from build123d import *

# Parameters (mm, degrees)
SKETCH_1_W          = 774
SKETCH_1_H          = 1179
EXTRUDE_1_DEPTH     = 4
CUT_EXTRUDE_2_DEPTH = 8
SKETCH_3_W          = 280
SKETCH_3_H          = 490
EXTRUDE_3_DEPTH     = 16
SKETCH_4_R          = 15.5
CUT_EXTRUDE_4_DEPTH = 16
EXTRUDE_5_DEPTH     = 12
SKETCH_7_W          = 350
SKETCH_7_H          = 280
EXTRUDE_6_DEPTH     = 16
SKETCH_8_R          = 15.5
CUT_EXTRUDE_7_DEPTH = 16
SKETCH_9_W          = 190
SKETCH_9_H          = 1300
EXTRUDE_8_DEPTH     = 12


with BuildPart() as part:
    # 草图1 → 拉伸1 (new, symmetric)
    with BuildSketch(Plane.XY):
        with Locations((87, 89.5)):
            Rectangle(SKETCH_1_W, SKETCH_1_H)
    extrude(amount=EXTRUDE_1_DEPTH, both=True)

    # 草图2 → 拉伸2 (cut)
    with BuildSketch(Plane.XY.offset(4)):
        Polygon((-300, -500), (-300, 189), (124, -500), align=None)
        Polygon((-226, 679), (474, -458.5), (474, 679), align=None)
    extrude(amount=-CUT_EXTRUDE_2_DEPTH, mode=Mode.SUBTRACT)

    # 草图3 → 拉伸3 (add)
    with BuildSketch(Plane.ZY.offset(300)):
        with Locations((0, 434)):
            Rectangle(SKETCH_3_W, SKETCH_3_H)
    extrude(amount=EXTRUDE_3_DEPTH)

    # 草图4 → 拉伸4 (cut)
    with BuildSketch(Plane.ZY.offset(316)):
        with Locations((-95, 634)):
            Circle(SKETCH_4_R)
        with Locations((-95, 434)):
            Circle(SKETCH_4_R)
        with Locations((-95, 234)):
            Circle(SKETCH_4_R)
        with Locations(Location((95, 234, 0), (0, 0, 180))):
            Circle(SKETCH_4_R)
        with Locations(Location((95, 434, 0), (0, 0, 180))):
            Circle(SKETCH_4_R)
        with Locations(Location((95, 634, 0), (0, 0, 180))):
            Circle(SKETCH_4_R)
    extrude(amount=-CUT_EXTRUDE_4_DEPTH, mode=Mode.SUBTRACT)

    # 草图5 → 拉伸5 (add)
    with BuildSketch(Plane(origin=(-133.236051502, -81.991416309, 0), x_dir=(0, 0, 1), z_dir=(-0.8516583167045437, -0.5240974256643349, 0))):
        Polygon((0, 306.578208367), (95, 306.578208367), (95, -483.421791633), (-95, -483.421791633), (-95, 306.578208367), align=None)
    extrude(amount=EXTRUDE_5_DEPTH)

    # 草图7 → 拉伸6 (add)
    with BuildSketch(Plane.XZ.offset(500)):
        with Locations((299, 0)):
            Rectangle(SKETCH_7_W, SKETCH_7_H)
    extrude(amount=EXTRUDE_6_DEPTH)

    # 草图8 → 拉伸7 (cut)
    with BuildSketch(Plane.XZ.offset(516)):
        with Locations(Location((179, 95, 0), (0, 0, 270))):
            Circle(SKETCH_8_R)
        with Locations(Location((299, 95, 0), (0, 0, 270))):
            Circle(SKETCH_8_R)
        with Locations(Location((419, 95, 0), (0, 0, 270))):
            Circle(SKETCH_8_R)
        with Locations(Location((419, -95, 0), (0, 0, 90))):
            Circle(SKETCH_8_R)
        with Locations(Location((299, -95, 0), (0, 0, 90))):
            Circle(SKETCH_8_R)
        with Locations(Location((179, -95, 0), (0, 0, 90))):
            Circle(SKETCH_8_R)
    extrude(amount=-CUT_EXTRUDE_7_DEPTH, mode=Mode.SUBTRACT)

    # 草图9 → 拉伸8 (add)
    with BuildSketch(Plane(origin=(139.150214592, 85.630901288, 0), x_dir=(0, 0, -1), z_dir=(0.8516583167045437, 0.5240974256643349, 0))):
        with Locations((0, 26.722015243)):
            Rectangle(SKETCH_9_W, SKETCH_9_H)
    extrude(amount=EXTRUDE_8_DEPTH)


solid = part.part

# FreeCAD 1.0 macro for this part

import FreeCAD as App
import Part
import Sketcher

V = App.Vector
Q = App.Units.Quantity

doc = App.newDocument("Part")
body = doc.addObject("PartDesign::Body", "Body")

# Sketch on XY plane
sketch1 = body.newObject("Sketcher::SketchObject", "Sketch")
sketch1.AttachmentSupport = (doc.getObject("XY_Plane"), [""])
sketch1.MapMode = "FlatFace"
sketch1.addGeometry(Part.LineSegment(V(-300, 679, 0), V(-300, -500, 0)), False)
sketch1.addGeometry(Part.LineSegment(V(-300, -500, 0), V(474, -500, 0)), False)
sketch1.addGeometry(Part.LineSegment(V(474, -500, 0), V(474, 679, 0)), False)
sketch1.addGeometry(Part.LineSegment(V(474, 679, 0), V(-300, 679, 0)), False)
sketch1.addConstraint(Sketcher.Constraint("Coincident", 0, 2, 1, 1))
sketch1.addConstraint(Sketcher.Constraint("Coincident", 1, 2, 2, 1))
sketch1.addConstraint(Sketcher.Constraint("Coincident", 2, 2, 3, 1))
sketch1.addConstraint(Sketcher.Constraint("Coincident", 3, 2, 0, 1))
sketch1.addConstraint(Sketcher.Constraint("Vertical", 0))
sketch1.addConstraint(Sketcher.Constraint("Horizontal", 1))
sketch1.addConstraint(Sketcher.Constraint("Vertical", 2))
sketch1.addConstraint(Sketcher.Constraint("Horizontal", 3))
sketch1.addConstraint(Sketcher.Constraint("DistanceX", 1, 1, 1, 2, Q("774 mm")))
sketch1.addConstraint(Sketcher.Constraint("DistanceY", 0, 2, 0, 1, Q("1179 mm")))
sketch1.addConstraint(Sketcher.Constraint("DistanceX", 0, 2, -1, 1, Q("300 mm")))
sketch1.addConstraint(Sketcher.Constraint("DistanceY", 0, 2, -1, 1, Q("500 mm")))
pad1 = body.newObject("PartDesign::Pad", "Pad")
pad1.Profile = sketch1
pad1.Length = 8
pad1.Midplane = True

# Sketch on XY plane
sketch2 = body.newObject("Sketcher::SketchObject", "Sketch001")
sketch2.AttachmentSupport = (doc.getObject("XY_Plane"), [""])
sketch2.MapMode = "FlatFace"
sketch2.AttachmentOffset = App.Placement(V(0, 0, 4), App.Rotation())
sketch2.addGeometry(Part.LineSegment(V(-300, 189, 0), V(-300, -500, 0)), False)
sketch2.addGeometry(Part.LineSegment(V(-300, -500, 0), V(124, -500, 0)), False)
sketch2.addGeometry(Part.LineSegment(V(124, -500, 0), V(-300, 189, 0)), False)
sketch2.addGeometry(Part.LineSegment(V(-226, 679, 0), V(474, -458, 0)), False)
sketch2.addGeometry(Part.LineSegment(V(474, -458, 0), V(474, 679, 0)), False)
sketch2.addGeometry(Part.LineSegment(V(474, 679, 0), V(-226, 679, 0)), False)
sketch2.addConstraint(Sketcher.Constraint("Coincident", 0, 2, 1, 1))
sketch2.addConstraint(Sketcher.Constraint("Coincident", 1, 2, 2, 1))
sketch2.addConstraint(Sketcher.Constraint("Coincident", 2, 2, 0, 1))
sketch2.addConstraint(Sketcher.Constraint("Coincident", 3, 2, 4, 1))
sketch2.addConstraint(Sketcher.Constraint("Coincident", 4, 2, 5, 1))
sketch2.addConstraint(Sketcher.Constraint("Coincident", 5, 2, 3, 1))
sketch2.addConstraint(Sketcher.Constraint("Vertical", 0))
sketch2.addConstraint(Sketcher.Constraint("Horizontal", 1))
sketch2.addConstraint(Sketcher.Constraint("Vertical", 4))
sketch2.addConstraint(Sketcher.Constraint("Horizontal", 5))
sketch2.addConstraint(Sketcher.Constraint("Parallel", 2, 3))
sketch2.addConstraint(Sketcher.Constraint("DistanceX", 1, 1, 1, 2, Q("424 mm")))
sketch2.addConstraint(Sketcher.Constraint("DistanceX", 5, 2, 5, 1, Q("700 mm")))
sketch2.addConstraint(Sketcher.Constraint("DistanceY", 0, 2, 0, 1, Q("689 mm")))
sketch2.addConstraint(Sketcher.Constraint("DistanceX", 0, 2, -1, 1, Q("300 mm")))
sketch2.addConstraint(Sketcher.Constraint("DistanceY", 0, 2, -1, 1, Q("500 mm")))
sketch2.addConstraint(Sketcher.Constraint("DistanceX", -1, 1, 3, 2, Q("474 mm")))
sketch2.addConstraint(Sketcher.Constraint("DistanceY", -1, 1, 4, 2, Q("679 mm")))
pocket1 = body.newObject("PartDesign::Pocket", "Pocket")
pocket1.Profile = sketch2
pocket1.Length = 8

# Sketch on YZ plane
sketch3 = body.newObject("Sketcher::SketchObject", "Sketch002")
sketch3.AttachmentSupport = (doc.getObject("YZ_Plane"), [""])
sketch3.MapMode = "FlatFace"
sketch3.AttachmentOffset = App.Placement(V(0, 0, -300), App.Rotation())
sketch3.addGeometry(Part.LineSegment(V(679, -140, 0), V(189, -140, 0)), False)
sketch3.addGeometry(Part.LineSegment(V(189, -140, 0), V(189, 140, 0)), False)
sketch3.addGeometry(Part.LineSegment(V(189, 140, 0), V(679, 140, 0)), False)
sketch3.addGeometry(Part.LineSegment(V(679, 140, 0), V(679, -140, 0)), False)
sketch3.addConstraint(Sketcher.Constraint("Coincident", 0, 2, 1, 1))
sketch3.addConstraint(Sketcher.Constraint("Coincident", 1, 2, 2, 1))
sketch3.addConstraint(Sketcher.Constraint("Coincident", 2, 2, 3, 1))
sketch3.addConstraint(Sketcher.Constraint("Coincident", 3, 2, 0, 1))
sketch3.addConstraint(Sketcher.Constraint("Horizontal", 0))
sketch3.addConstraint(Sketcher.Constraint("Vertical", 1))
sketch3.addConstraint(Sketcher.Constraint("Horizontal", 2))
sketch3.addConstraint(Sketcher.Constraint("Vertical", 3))
sketch3.addConstraint(Sketcher.Constraint("DistanceX", 0, 2, 0, 1, Q("490 mm")))
sketch3.addConstraint(Sketcher.Constraint("DistanceY", 1, 1, 1, 2, Q("280 mm")))
sketch3.addConstraint(Sketcher.Constraint("DistanceX", -1, 1, 0, 2, Q("189 mm")))
sketch3.addConstraint(Sketcher.Constraint("DistanceY", 0, 2, -1, 1, Q("140 mm")))
pad2 = body.newObject("PartDesign::Pad", "Pad001")
pad2.Profile = sketch3
pad2.Length = 16
pad2.Reversed = True

# Sketch on YZ plane
sketch4 = body.newObject("Sketcher::SketchObject", "Sketch003")
sketch4.AttachmentSupport = (doc.getObject("YZ_Plane"), [""])
sketch4.MapMode = "FlatFace"
sketch4.AttachmentOffset = App.Placement(V(0, 0, -316), App.Rotation())
sketch4.addGeometry(Part.Circle(V(634, -95, 0), V(0, 0, 1), 16), False)
sketch4.addGeometry(Part.Circle(V(434, -95, 0), V(0, 0, 1), 16), False)
sketch4.addGeometry(Part.Circle(V(234, -95, 0), V(0, 0, 1), 16), False)
sketch4.addGeometry(Part.Circle(V(234, 95, 0), V(0, 0, 1), 16), False)
sketch4.addGeometry(Part.Circle(V(434, 95, 0), V(0, 0, 1), 16), False)
sketch4.addGeometry(Part.Circle(V(634, 95, 0), V(0, 0, 1), 16), False)
sketch4.addConstraint(Sketcher.Constraint("Equal", 0, 1))
sketch4.addConstraint(Sketcher.Constraint("Equal", 1, 2))
sketch4.addConstraint(Sketcher.Constraint("Equal", 2, 3))
sketch4.addConstraint(Sketcher.Constraint("Equal", 3, 4))
sketch4.addConstraint(Sketcher.Constraint("Equal", 4, 5))
sketch4.addConstraint(Sketcher.Constraint("Symmetric", 2, 3, 3, 3, -1))
sketch4.addConstraint(Sketcher.Constraint("Symmetric", 1, 3, 4, 3, -1))
sketch4.addConstraint(Sketcher.Constraint("Symmetric", 0, 3, 5, 3, -1))
sketch4.addConstraint(Sketcher.Constraint("Horizontal", 0, 3, 1, 3))
sketch4.addConstraint(Sketcher.Constraint("Horizontal", 1, 3, 2, 3))
sketch4.addConstraint(Sketcher.Constraint("Diameter", 0, Q("31 mm")))
sketch4.addConstraint(Sketcher.Constraint("DistanceX", -1, 1, 0, 3, Q("634 mm")))
sketch4.addConstraint(Sketcher.Constraint("DistanceY", 0, 3, -1, 1, Q("95 mm")))
sketch4.addConstraint(Sketcher.Constraint("DistanceX", -1, 1, 1, 3, Q("434 mm")))
sketch4.addConstraint(Sketcher.Constraint("DistanceX", -1, 1, 2, 3, Q("234 mm")))
pocket2 = body.newObject("PartDesign::Pocket", "Pocket001")
pocket2.Profile = sketch4
pocket2.Length = 16
pocket2.Reversed = True

# Sketch on an angled plane
sketch5 = body.newObject("Sketcher::SketchObject", "Sketch004")
sketch5.Placement = App.Placement(V(-133.236052, -81.991416, 0), App.Rotation(V(0, 0, 1), V(-0.524097426, 0.851658317, 0), V(-0.851658317, -0.524097426, 0), "ZXY"))
sketch5.addGeometry(Part.LineSegment(V(95, 307, 0), V(-95, 307, 0)), False)
sketch5.addGeometry(Part.LineSegment(V(-95, 307, 0), V(-95, -483, 0)), False)
sketch5.addGeometry(Part.LineSegment(V(-95, -483, 0), V(95, -483, 0)), False)
sketch5.addGeometry(Part.LineSegment(V(95, -483, 0), V(95, 307, 0)), False)
sketch5.addConstraint(Sketcher.Constraint("Coincident", 0, 2, 1, 1))
sketch5.addConstraint(Sketcher.Constraint("Coincident", 1, 2, 2, 1))
sketch5.addConstraint(Sketcher.Constraint("Coincident", 2, 2, 3, 1))
sketch5.addConstraint(Sketcher.Constraint("Coincident", 3, 2, 0, 1))
sketch5.addConstraint(Sketcher.Constraint("Horizontal", 0))
sketch5.addConstraint(Sketcher.Constraint("Vertical", 1))
sketch5.addConstraint(Sketcher.Constraint("Horizontal", 2))
sketch5.addConstraint(Sketcher.Constraint("Vertical", 3))
sketch5.addConstraint(Sketcher.Constraint("DistanceX", 0, 2, 0, 1, Q("190 mm")))
sketch5.addConstraint(Sketcher.Constraint("DistanceY", 1, 2, 1, 1, Q("790.000001 mm")))
sketch5.addConstraint(Sketcher.Constraint("DistanceX", 0, 2, -1, 1, Q("95 mm")))
sketch5.addConstraint(Sketcher.Constraint("DistanceY", -1, 1, 0, 2, Q("306.578209 mm")))
pad3 = body.newObject("PartDesign::Pad", "Pad002")
pad3.Profile = sketch5
pad3.Length = 12

# Sketch on XZ plane
sketch6 = body.newObject("Sketcher::SketchObject", "Sketch005")
sketch6.AttachmentSupport = (doc.getObject("XZ_Plane"), [""])
sketch6.MapMode = "FlatFace"
sketch6.AttachmentOffset = App.Placement(V(0, 0, 500), App.Rotation())
sketch6.addGeometry(Part.LineSegment(V(124, 140, 0), V(124, -140, 0)), False)
sketch6.addGeometry(Part.LineSegment(V(124, -140, 0), V(474, -140, 0)), False)
sketch6.addGeometry(Part.LineSegment(V(474, -140, 0), V(474, 140, 0)), False)
sketch6.addGeometry(Part.LineSegment(V(474, 140, 0), V(124, 140, 0)), False)
sketch6.addConstraint(Sketcher.Constraint("Coincident", 0, 2, 1, 1))
sketch6.addConstraint(Sketcher.Constraint("Coincident", 1, 2, 2, 1))
sketch6.addConstraint(Sketcher.Constraint("Coincident", 2, 2, 3, 1))
sketch6.addConstraint(Sketcher.Constraint("Coincident", 3, 2, 0, 1))
sketch6.addConstraint(Sketcher.Constraint("Vertical", 0))
sketch6.addConstraint(Sketcher.Constraint("Horizontal", 1))
sketch6.addConstraint(Sketcher.Constraint("Vertical", 2))
sketch6.addConstraint(Sketcher.Constraint("Horizontal", 3))
sketch6.addConstraint(Sketcher.Constraint("DistanceX", 1, 1, 1, 2, Q("350 mm")))
sketch6.addConstraint(Sketcher.Constraint("DistanceY", 0, 2, 0, 1, Q("280 mm")))
sketch6.addConstraint(Sketcher.Constraint("DistanceX", -1, 1, 0, 2, Q("124 mm")))
sketch6.addConstraint(Sketcher.Constraint("DistanceY", 0, 2, -1, 1, Q("140 mm")))
pad4 = body.newObject("PartDesign::Pad", "Pad003")
pad4.Profile = sketch6
pad4.Length = 16

# Sketch on XZ plane
sketch7 = body.newObject("Sketcher::SketchObject", "Sketch006")
sketch7.AttachmentSupport = (doc.getObject("XZ_Plane"), [""])
sketch7.MapMode = "FlatFace"
sketch7.AttachmentOffset = App.Placement(V(0, 0, 516), App.Rotation())
sketch7.addGeometry(Part.Circle(V(179, 95, 0), V(0, 0, 1), 16), False)
sketch7.addGeometry(Part.Circle(V(299, 95, 0), V(0, 0, 1), 16), False)
sketch7.addGeometry(Part.Circle(V(419, 95, 0), V(0, 0, 1), 16), False)
sketch7.addGeometry(Part.Circle(V(419, -95, 0), V(0, 0, 1), 16), False)
sketch7.addGeometry(Part.Circle(V(299, -95, 0), V(0, 0, 1), 16), False)
sketch7.addGeometry(Part.Circle(V(179, -95, 0), V(0, 0, 1), 16), False)
sketch7.addConstraint(Sketcher.Constraint("Equal", 0, 1))
sketch7.addConstraint(Sketcher.Constraint("Equal", 1, 2))
sketch7.addConstraint(Sketcher.Constraint("Equal", 2, 3))
sketch7.addConstraint(Sketcher.Constraint("Equal", 3, 4))
sketch7.addConstraint(Sketcher.Constraint("Equal", 4, 5))
sketch7.addConstraint(Sketcher.Constraint("Symmetric", 2, 3, 3, 3, -1))
sketch7.addConstraint(Sketcher.Constraint("Symmetric", 1, 3, 4, 3, -1))
sketch7.addConstraint(Sketcher.Constraint("Symmetric", 0, 3, 5, 3, -1))
sketch7.addConstraint(Sketcher.Constraint("Horizontal", 0, 3, 1, 3))
sketch7.addConstraint(Sketcher.Constraint("Horizontal", 1, 3, 2, 3))
sketch7.addConstraint(Sketcher.Constraint("Diameter", 0, Q("31 mm")))
sketch7.addConstraint(Sketcher.Constraint("DistanceX", -1, 1, 0, 3, Q("179 mm")))
sketch7.addConstraint(Sketcher.Constraint("DistanceY", -1, 1, 0, 3, Q("95 mm")))
sketch7.addConstraint(Sketcher.Constraint("DistanceX", -1, 1, 1, 3, Q("299 mm")))
sketch7.addConstraint(Sketcher.Constraint("DistanceX", -1, 1, 2, 3, Q("419 mm")))
pocket3 = body.newObject("PartDesign::Pocket", "Pocket002")
pocket3.Profile = sketch7
pocket3.Length = 16

# Sketch on an angled plane
sketch8 = body.newObject("Sketcher::SketchObject", "Sketch007")
sketch8.Placement = App.Placement(V(139.150215, 85.630901, 0), App.Rotation(V(0, 0, -1), V(-0.524097426, 0.851658317, 0), V(0.851658317, 0.524097426, 0), "ZXY"))
sketch8.addGeometry(Part.LineSegment(V(-95, 677, 0), V(-95, -623, 0)), False)
sketch8.addGeometry(Part.LineSegment(V(-95, -623, 0), V(95, -623, 0)), False)
sketch8.addGeometry(Part.LineSegment(V(95, -623, 0), V(95, 677, 0)), False)
sketch8.addGeometry(Part.LineSegment(V(95, 677, 0), V(-95, 677, 0)), False)
sketch8.addConstraint(Sketcher.Constraint("Coincident", 0, 2, 1, 1))
sketch8.addConstraint(Sketcher.Constraint("Coincident", 1, 2, 2, 1))
sketch8.addConstraint(Sketcher.Constraint("Coincident", 2, 2, 3, 1))
sketch8.addConstraint(Sketcher.Constraint("Coincident", 3, 2, 0, 1))
sketch8.addConstraint(Sketcher.Constraint("Vertical", 0))
sketch8.addConstraint(Sketcher.Constraint("Horizontal", 1))
sketch8.addConstraint(Sketcher.Constraint("Vertical", 2))
sketch8.addConstraint(Sketcher.Constraint("Horizontal", 3))
sketch8.addConstraint(Sketcher.Constraint("DistanceX", 1, 1, 1, 2, Q("190 mm")))
sketch8.addConstraint(Sketcher.Constraint("DistanceY", 0, 2, 0, 1, Q("1300.000001 mm")))
sketch8.addConstraint(Sketcher.Constraint("DistanceX", 0, 2, -1, 1, Q("95 mm")))
sketch8.addConstraint(Sketcher.Constraint("DistanceY", 0, 2, -1, 1, Q("623.277985 mm")))
pad5 = body.newObject("PartDesign::Pad", "Pad004")
pad5.Profile = sketch8
pad5.Length = 12

doc.recompute()
